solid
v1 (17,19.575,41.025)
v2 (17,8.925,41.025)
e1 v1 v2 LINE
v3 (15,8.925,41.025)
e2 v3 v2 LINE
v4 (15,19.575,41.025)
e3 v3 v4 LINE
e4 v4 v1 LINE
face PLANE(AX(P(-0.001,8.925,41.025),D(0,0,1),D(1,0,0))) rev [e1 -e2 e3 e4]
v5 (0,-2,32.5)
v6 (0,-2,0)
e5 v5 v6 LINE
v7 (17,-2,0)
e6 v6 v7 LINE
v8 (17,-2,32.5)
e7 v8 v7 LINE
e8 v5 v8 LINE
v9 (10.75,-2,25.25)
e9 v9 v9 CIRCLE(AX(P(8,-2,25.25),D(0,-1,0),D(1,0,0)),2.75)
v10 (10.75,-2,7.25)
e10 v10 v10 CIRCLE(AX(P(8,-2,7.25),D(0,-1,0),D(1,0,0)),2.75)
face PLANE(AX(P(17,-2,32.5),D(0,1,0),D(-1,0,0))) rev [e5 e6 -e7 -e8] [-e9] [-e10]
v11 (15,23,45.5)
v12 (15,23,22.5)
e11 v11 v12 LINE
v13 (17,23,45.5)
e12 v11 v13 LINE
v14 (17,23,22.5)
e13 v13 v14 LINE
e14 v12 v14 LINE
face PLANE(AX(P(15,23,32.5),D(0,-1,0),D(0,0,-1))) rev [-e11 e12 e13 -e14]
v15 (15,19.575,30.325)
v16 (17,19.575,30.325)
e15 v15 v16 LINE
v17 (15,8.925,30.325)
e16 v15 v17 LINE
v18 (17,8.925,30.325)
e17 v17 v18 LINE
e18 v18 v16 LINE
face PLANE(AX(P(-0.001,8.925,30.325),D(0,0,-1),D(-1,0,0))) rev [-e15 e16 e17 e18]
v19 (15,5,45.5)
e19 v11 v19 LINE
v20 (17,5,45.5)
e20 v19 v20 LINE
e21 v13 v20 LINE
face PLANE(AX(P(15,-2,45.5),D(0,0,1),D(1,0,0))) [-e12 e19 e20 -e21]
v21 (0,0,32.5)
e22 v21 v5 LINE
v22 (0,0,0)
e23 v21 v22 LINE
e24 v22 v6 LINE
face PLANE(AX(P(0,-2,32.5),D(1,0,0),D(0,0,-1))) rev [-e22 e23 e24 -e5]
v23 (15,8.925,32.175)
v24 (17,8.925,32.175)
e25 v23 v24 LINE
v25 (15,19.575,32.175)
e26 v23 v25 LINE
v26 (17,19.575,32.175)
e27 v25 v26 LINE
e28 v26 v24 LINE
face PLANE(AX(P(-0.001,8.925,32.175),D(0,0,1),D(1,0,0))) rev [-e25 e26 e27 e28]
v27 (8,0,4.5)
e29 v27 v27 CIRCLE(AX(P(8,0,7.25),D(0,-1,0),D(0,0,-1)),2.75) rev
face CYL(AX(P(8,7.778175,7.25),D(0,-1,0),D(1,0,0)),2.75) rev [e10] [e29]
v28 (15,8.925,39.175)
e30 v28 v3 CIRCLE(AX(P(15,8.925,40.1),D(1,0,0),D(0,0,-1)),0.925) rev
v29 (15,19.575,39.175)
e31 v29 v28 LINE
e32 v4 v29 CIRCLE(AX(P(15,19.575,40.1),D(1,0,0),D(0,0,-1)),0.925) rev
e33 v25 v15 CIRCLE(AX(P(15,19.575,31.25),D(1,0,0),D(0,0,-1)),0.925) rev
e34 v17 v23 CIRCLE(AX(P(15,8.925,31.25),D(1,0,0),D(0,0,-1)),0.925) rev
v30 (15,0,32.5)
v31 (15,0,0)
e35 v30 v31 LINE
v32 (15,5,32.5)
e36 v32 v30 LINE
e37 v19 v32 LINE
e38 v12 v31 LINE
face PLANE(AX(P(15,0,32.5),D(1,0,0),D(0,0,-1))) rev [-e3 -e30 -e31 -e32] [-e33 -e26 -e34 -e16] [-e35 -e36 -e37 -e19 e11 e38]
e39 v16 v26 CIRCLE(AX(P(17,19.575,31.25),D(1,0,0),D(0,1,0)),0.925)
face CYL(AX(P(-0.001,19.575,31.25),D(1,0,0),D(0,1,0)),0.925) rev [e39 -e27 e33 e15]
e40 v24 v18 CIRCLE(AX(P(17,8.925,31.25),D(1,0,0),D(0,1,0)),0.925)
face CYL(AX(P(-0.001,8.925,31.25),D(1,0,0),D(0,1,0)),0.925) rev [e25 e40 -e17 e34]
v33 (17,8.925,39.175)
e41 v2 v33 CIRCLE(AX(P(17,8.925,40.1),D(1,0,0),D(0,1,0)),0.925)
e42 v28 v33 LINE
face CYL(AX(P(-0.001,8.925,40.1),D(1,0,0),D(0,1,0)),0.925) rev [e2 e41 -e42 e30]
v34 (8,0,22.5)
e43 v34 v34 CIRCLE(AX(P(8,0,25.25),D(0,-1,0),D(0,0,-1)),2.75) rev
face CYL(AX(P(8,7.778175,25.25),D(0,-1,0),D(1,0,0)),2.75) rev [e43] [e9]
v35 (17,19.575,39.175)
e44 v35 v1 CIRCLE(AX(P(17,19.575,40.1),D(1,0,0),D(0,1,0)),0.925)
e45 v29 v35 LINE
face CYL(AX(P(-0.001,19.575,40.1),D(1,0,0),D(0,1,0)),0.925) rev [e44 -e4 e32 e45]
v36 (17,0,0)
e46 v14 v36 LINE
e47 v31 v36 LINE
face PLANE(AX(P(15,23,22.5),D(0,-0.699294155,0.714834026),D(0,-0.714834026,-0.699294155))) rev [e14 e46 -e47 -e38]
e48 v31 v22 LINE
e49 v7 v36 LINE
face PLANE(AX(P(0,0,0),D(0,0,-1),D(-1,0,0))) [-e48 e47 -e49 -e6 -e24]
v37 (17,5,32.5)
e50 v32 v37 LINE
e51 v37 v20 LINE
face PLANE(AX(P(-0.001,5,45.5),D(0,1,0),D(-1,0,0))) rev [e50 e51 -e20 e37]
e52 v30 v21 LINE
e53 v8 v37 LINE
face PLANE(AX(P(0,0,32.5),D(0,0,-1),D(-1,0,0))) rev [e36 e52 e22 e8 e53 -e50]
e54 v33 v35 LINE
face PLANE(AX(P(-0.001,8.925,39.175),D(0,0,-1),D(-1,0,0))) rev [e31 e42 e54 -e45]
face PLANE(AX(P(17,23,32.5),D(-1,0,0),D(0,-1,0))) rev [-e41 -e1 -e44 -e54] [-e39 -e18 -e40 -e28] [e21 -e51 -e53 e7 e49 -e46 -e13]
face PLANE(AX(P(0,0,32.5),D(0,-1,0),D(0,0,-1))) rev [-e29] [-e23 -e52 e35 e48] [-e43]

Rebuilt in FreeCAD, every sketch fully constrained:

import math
import FreeCAD as App
import Part
import Sketcher
Q = App.Units.Quantity

doc = App.newDocument("Part")
params = doc.addObject("Spreadsheet::Sheet", "Params")
for row, (alias, value) in enumerate([
    ("sketch1_width", "15 mm"),
    ("sketch1_width2", "17 mm"),
    ("sketch1_height", "25 mm"),
    ("pad1_length", "32.5 mm"),
    ("sketch2_diameter", "5.5 mm"),
    ("pocket1_length", "2 mm"),
    ("sketch3_width", "23 mm"),
    ("sketch3_height", "22.5 mm"),
    ("pocket2_length", "2 mm"),
    ("sketch4_width", "25 mm"),
    ("sketch4_height", "13 mm"),
    ("pad2_length", "2 mm"),
    ("sketch5_width", "10.65 mm"),
    ("sketch6_width", "10.65 mm"),
    ("sketch7_width", "7 mm"),
    ("sketch7_height", "13 mm"),
], start=1):
    params.set(f"A{row}", alias)
    params.set(f"B{row}", "=" + value)
    params.setAlias(f"B{row}", alias)

body = doc.addObject("PartDesign::Body", "Body")

# Sketch on XY plane
sketch1 = body.newObject("Sketcher::SketchObject", "Sketch")
sketch1.AttachmentSupport = (doc.getObject("XY_Plane"), [""])
sketch1.MapMode = "FlatFace"
sketch1.addGeometry(Part.LineSegment(App.Vector(15, 0, 0), App.Vector(0, 0, 0)), False)
sketch1.addGeometry(Part.LineSegment(App.Vector(0, 0, 0), App.Vector(0, -2, 0)), False)
sketch1.addGeometry(Part.LineSegment(App.Vector(0, -2, 0), App.Vector(17, -2, 0)), False)
sketch1.addGeometry(Part.LineSegment(App.Vector(17, -2, 0), App.Vector(17, 23, 0)), False)
sketch1.addGeometry(Part.LineSegment(App.Vector(17, 23, 0), App.Vector(15, 23, 0)), False)
sketch1.addGeometry(Part.LineSegment(App.Vector(15, 23, 0), App.Vector(15, 0, 0)), False)
sketch1.addConstraint(Sketcher.Constraint("Coincident", 0, 2, 1, 1))
sketch1.addConstraint(Sketcher.Constraint("Coincident", 1, 2, 2, 1))
sketch1.addConstraint(Sketcher.Constraint("Coincident", 2, 2, 3, 1))
sketch1.addConstraint(Sketcher.Constraint("Coincident", 3, 2, 4, 1))
sketch1.addConstraint(Sketcher.Constraint("Coincident", 4, 2, 5, 1))
sketch1.addConstraint(Sketcher.Constraint("Coincident", 5, 2, 0, 1))
sketch1.addConstraint(Sketcher.Constraint("Horizontal", 0))
sketch1.addConstraint(Sketcher.Constraint("Vertical", 1))
sketch1.addConstraint(Sketcher.Constraint("Horizontal", 2))
sketch1.addConstraint(Sketcher.Constraint("Vertical", 3))
sketch1.addConstraint(Sketcher.Constraint("Horizontal", 4))
sketch1.addConstraint(Sketcher.Constraint("Vertical", 5))
sketch1.addConstraint(Sketcher.Constraint("Coincident", 0, 2, -1, 1))
sketch1.addConstraint(Sketcher.Constraint("Equal", 4, 1))
sketch1.addConstraint(Sketcher.Constraint("DistanceX", 0, 2, 0, 1, Q("15 mm")))
sketch1.addConstraint(Sketcher.Constraint("DistanceX", 2, 1, 2, 2, Q("17 mm")))
sketch1.addConstraint(Sketcher.Constraint("DistanceY", 3, 1, 3, 2, Q("25 mm")))
sketch1.setExpression("Constraints[14]", "Params.sketch1_width")
sketch1.setExpression("Constraints[15]", "Params.sketch1_width2")
sketch1.setExpression("Constraints[16]", "Params.sketch1_height")
pad1 = body.newObject("PartDesign::Pad", "Pad")
pad1.Profile = sketch1
pad1.setExpression("Length", "Params.pad1_length")

# Sketch on XZ plane
sketch2 = body.newObject("Sketcher::SketchObject", "Sketch001")
sketch2.AttachmentSupport = (doc.getObject("XZ_Plane"), [""])
sketch2.MapMode = "FlatFace"
sketch2.AttachmentOffset = App.Placement(App.Vector(0, 0, 2), App.Rotation())
sketch2.addGeometry(Part.Circle(App.Vector(8, 25.25, 0), App.Vector(0, 0, 1), 2.75), False)
sketch2.addGeometry(Part.Circle(App.Vector(8, 7.25, 0), App.Vector(0, 0, 1), 2.75), False)
sketch2.addConstraint(Sketcher.Constraint("Equal", 0, 1))
sketch2.addConstraint(Sketcher.Constraint("Vertical", 0, 3, 1, 3))
sketch2.addConstraint(Sketcher.Constraint("Diameter", 0, Q("5.5 mm")))
sketch2.addConstraint(Sketcher.Constraint("DistanceX", -1, 1, 0, 3, Q("8 mm")))
sketch2.addConstraint(Sketcher.Constraint("DistanceY", 1, 3, 0, 3, Q("18 mm")))
sketch2.addConstraint(Sketcher.Constraint("DistanceY", -1, 1, 0, 3, Q("25.25 mm")))
sketch2.setExpression("Constraints[2]", "Params.sketch2_diameter")
pocket1 = body.newObject("PartDesign::Pocket", "Pocket")
pocket1.Profile = sketch2
pocket1.setExpression("Length", "Params.pocket1_length")

# Sketch on YZ plane
sketch3 = body.newObject("Sketcher::SketchObject", "Sketch002")
sketch3.AttachmentSupport = (doc.getObject("YZ_Plane"), [""])
sketch3.MapMode = "FlatFace"
sketch3.AttachmentOffset = App.Placement(App.Vector(0, 0, 17), App.Rotation())
sketch3.addGeometry(Part.LineSegment(App.Vector(23, 22.5, 0), App.Vector(0, 0, 0)), False)
sketch3.addGeometry(Part.LineSegment(App.Vector(0, 0, 0), App.Vector(23, 0, 0)), False)
sketch3.addGeometry(Part.LineSegment(App.Vector(23, 0, 0), App.Vector(23, 22.5, 0)), False)
sketch3.addConstraint(Sketcher.Constraint("Coincident", 0, 2, 1, 1))
sketch3.addConstraint(Sketcher.Constraint("Coincident", 1, 2, 2, 1))
sketch3.addConstraint(Sketcher.Constraint("Coincident", 2, 2, 0, 1))
sketch3.addConstraint(Sketcher.Constraint("Horizontal", 1))
sketch3.addConstraint(Sketcher.Constraint("Vertical", 2))
sketch3.addConstraint(Sketcher.Constraint("Coincident", 0, 2, -1, 1))
sketch3.addConstraint(Sketcher.Constraint("DistanceX", 1, 1, 1, 2, Q("23 mm")))
sketch3.addConstraint(Sketcher.Constraint("DistanceY", 2, 1, 2, 2, Q("22.5 mm")))
sketch3.setExpression("Constraints[6]", "Params.sketch3_width")
sketch3.setExpression("Constraints[7]", "Params.sketch3_height")
pocket2 = body.newObject("PartDesign::Pocket", "Pocket001")
pocket2.Profile = sketch3
pocket2.setExpression("Length", "Params.pocket2_length")

# Sketch on YZ plane
sketch4 = body.newObject("Sketcher::SketchObject", "Sketch003")
sketch4.AttachmentSupport = (doc.getObject("YZ_Plane"), [""])
sketch4.MapMode = "FlatFace"
sketch4.AttachmentOffset = App.Placement(App.Vector(0, 0, 17), App.Rotation())
sketch4.addGeometry(Part.LineSegment(App.Vector(-2, 45.5, 0), App.Vector(-2, 32.5, 0)), False)
sketch4.addGeometry(Part.LineSegment(App.Vector(-2, 32.5, 0), App.Vector(23, 32.5, 0)), False)
sketch4.addGeometry(Part.LineSegment(App.Vector(23, 32.5, 0), App.Vector(23, 45.5, 0)), False)
sketch4.addGeometry(Part.LineSegment(App.Vector(23, 45.5, 0), App.Vector(-2, 45.5, 0)), False)
sketch4.addConstraint(Sketcher.Constraint("Coincident", 0, 2, 1, 1))
sketch4.addConstraint(Sketcher.Constraint("Coincident", 1, 2, 2, 1))
sketch4.addConstraint(Sketcher.Constraint("Coincident", 2, 2, 3, 1))
sketch4.addConstraint(Sketcher.Constraint("Coincident", 3, 2, 0, 1))
sketch4.addConstraint(Sketcher.Constraint("Vertical", 0))
sketch4.addConstraint(Sketcher.Constraint("Horizontal", 1))
sketch4.addConstraint(Sketcher.Constraint("Vertical", 2))
sketch4.addConstraint(Sketcher.Constraint("Horizontal", 3))
sketch4.addConstraint(Sketcher.Constraint("DistanceX", 1, 1, 1, 2, Q("25 mm")))
sketch4.addConstraint(Sketcher.Constraint("DistanceY", 0, 2, 0, 1, Q("13 mm")))
sketch4.addConstraint(Sketcher.Constraint("DistanceX", 0, 2, -1, 1, Q("2 mm")))
sketch4.addConstraint(Sketcher.Constraint("DistanceY", -1, 1, 0, 2, Q("32.5 mm")))
sketch4.setExpression("Constraints[8]", "Params.sketch4_width")
sketch4.setExpression("Constraints[9]", "Params.sketch4_height")
pad2 = body.newObject("PartDesign::Pad", "Pad001")
pad2.Profile = sketch4
pad2.setExpression("Length", "Params.pad2_length")
pad2.Reversed = True

# Sketch on YZ plane
sketch5 = body.newObject("Sketcher::SketchObject", "Sketch004")
sketch5.AttachmentSupport = (doc.getObject("YZ_Plane"), [""])
sketch5.MapMode = "FlatFace"
sketch5.AttachmentOffset = App.Placement(App.Vector(0, 0, 17), App.Rotation())
sketch5.addGeometry(Part.LineSegment(App.Vector(19.575, 41.025, 0), App.Vector(8.925, 41.025, 0)), False)
sketch5.addGeometry(Part.ArcOfCircle(Part.Circle(App.Vector(8.925, 40.1, 0), App.Vector(0, 0, 1), 0.925), math.radians(90), math.radians(270)), False)
sketch5.addGeometry(Part.LineSegment(App.Vector(8.925, 39.175, 0), App.Vector(19.575, 39.175, 0)), False)
sketch5.addGeometry(Part.ArcOfCircle(Part.Circle(App.Vector(19.575, 40.1, 0), App.Vector(0, 0, 1), 0.925), math.radians(-90), math.radians(90)), False)
sketch5.addConstraint(Sketcher.Constraint("Tangent", 0, 2, 1, 1))
sketch5.addConstraint(Sketcher.Constraint("Tangent", 1, 2, 2, 1))
sketch5.addConstraint(Sketcher.Constraint("Tangent", 2, 2, 3, 1))
sketch5.addConstraint(Sketcher.Constraint("Tangent", 3, 2, 0, 1))
sketch5.addConstraint(Sketcher.Constraint("Horizontal", 0))
sketch5.addConstraint(Sketcher.Constraint("Horizontal", 2))
sketch5.addConstraint(Sketcher.Constraint("Radius", 1, Q("0.925 mm")))
sketch5.addConstraint(Sketcher.Constraint("DistanceX", 0, 2, 0, 1, Q("10.65 mm")))
sketch5.addConstraint(Sketcher.Constraint("DistanceY", -1, 1, 1, 3, Q("40.1 mm")))
sketch5.addConstraint(Sketcher.Constraint("DistanceX", -1, 1, 1, 3, Q("8.925 mm")))
sketch5.setExpression("Constraints[7]", "Params.sketch5_width")
pocket3 = body.newObject("PartDesign::Pocket", "Pocket002")
pocket3.Profile = sketch5
pocket3.Type = "UpToFirst"

# Sketch on YZ plane
sketch6 = body.newObject("Sketcher::SketchObject", "Sketch005")
sketch6.AttachmentSupport = (doc.getObject("YZ_Plane"), [""])
sketch6.MapMode = "FlatFace"
sketch6.AttachmentOffset = App.Placement(App.Vector(0, 0, 17), App.Rotation())
sketch6.addGeometry(Part.LineSegment(App.Vector(19.575, 32.175, 0), App.Vector(8.925, 32.175, 0)), False)
sketch6.addGeometry(Part.ArcOfCircle(Part.Circle(App.Vector(8.925, 31.25, 0), App.Vector(0, 0, 1), 0.925), math.radians(90), math.radians(270)), False)
sketch6.addGeometry(Part.LineSegment(App.Vector(8.925, 30.325, 0), App.Vector(19.575, 30.325, 0)), False)
sketch6.addGeometry(Part.ArcOfCircle(Part.Circle(App.Vector(19.575, 31.25, 0), App.Vector(0, 0, 1), 0.925), math.radians(-90), math.radians(90)), False)
sketch6.addConstraint(Sketcher.Constraint("Tangent", 0, 2, 1, 1))
sketch6.addConstraint(Sketcher.Constraint("Tangent", 1, 2, 2, 1))
sketch6.addConstraint(Sketcher.Constraint("Tangent", 2, 2, 3, 1))
sketch6.addConstraint(Sketcher.Constraint("Tangent", 3, 2, 0, 1))
sketch6.addConstraint(Sketcher.Constraint("Horizontal", 0))
sketch6.addConstraint(Sketcher.Constraint("Horizontal", 2))
sketch6.addConstraint(Sketcher.Constraint("Radius", 1, Q("0.925 mm")))
sketch6.addConstraint(Sketcher.Constraint("DistanceX", 0, 2, 0, 1, Q("10.65 mm")))
sketch6.addConstraint(Sketcher.Constraint("DistanceY", -1, 1, 1, 3, Q("31.25 mm")))
sketch6.addConstraint(Sketcher.Constraint("DistanceX", -1, 1, 1, 3, Q("8.925 mm")))
sketch6.setExpression("Constraints[7]", "Params.sketch6_width")
pocket4 = body.newObject("PartDesign::Pocket", "Pocket003")
pocket4.Profile = sketch6
pocket4.Type = "UpToFirst"

# Sketch on YZ plane
sketch7 = body.newObject("Sketcher::SketchObject", "Sketch006")
sketch7.AttachmentSupport = (doc.getObject("YZ_Plane"), [""])
sketch7.MapMode = "FlatFace"
sketch7.AttachmentOffset = App.Placement(App.Vector(0, 0, 17), App.Rotation())
sketch7.addGeometry(Part.LineSegment(App.Vector(-2, 45.5, 0), App.Vector(-2, 32.5, 0)), False)
sketch7.addGeometry(Part.LineSegment(App.Vector(-2, 32.5, 0), App.Vector(5, 32.5, 0)), False)
sketch7.addGeometry(Part.LineSegment(App.Vector(5, 32.5, 0), App.Vector(5, 45.5, 0)), False)
sketch7.addGeometry(Part.LineSegment(App.Vector(5, 45.5, 0), App.Vector(-2, 45.5, 0)), False)
sketch7.addConstraint(Sketcher.Constraint("Coincident", 0, 2, 1, 1))
sketch7.addConstraint(Sketcher.Constraint("Coincident", 1, 2, 2, 1))
sketch7.addConstraint(Sketcher.Constraint("Coincident", 2, 2, 3, 1))
sketch7.addConstraint(Sketcher.Constraint("Coincident", 3, 2, 0, 1))
sketch7.addConstraint(Sketcher.Constraint("Vertical", 0))
sketch7.addConstraint(Sketcher.Constraint("Horizontal", 1))
sketch7.addConstraint(Sketcher.Constraint("Vertical", 2))
sketch7.addConstraint(Sketcher.Constraint("Horizontal", 3))
sketch7.addConstraint(Sketcher.Constraint("DistanceX", 1, 1, 1, 2, Q("7 mm")))
sketch7.addConstraint(Sketcher.Constraint("DistanceY", 0, 2, 0, 1, Q("13 mm")))
sketch7.addConstraint(Sketcher.Constraint("DistanceX", 0, 2, -1, 1, Q("2 mm")))
sketch7.addConstraint(Sketcher.Constraint("DistanceY", -1, 1, 0, 2, Q("32.5 mm")))
sketch7.setExpression("Constraints[8]", "Params.sketch7_width")
sketch7.setExpression("Constraints[9]", "Params.sketch7_height")
pocket5 = body.newObject("PartDesign::Pocket", "Pocket004")
pocket5.Profile = sketch7
pocket5.Type = "UpToFirst"

doc.recompute()
